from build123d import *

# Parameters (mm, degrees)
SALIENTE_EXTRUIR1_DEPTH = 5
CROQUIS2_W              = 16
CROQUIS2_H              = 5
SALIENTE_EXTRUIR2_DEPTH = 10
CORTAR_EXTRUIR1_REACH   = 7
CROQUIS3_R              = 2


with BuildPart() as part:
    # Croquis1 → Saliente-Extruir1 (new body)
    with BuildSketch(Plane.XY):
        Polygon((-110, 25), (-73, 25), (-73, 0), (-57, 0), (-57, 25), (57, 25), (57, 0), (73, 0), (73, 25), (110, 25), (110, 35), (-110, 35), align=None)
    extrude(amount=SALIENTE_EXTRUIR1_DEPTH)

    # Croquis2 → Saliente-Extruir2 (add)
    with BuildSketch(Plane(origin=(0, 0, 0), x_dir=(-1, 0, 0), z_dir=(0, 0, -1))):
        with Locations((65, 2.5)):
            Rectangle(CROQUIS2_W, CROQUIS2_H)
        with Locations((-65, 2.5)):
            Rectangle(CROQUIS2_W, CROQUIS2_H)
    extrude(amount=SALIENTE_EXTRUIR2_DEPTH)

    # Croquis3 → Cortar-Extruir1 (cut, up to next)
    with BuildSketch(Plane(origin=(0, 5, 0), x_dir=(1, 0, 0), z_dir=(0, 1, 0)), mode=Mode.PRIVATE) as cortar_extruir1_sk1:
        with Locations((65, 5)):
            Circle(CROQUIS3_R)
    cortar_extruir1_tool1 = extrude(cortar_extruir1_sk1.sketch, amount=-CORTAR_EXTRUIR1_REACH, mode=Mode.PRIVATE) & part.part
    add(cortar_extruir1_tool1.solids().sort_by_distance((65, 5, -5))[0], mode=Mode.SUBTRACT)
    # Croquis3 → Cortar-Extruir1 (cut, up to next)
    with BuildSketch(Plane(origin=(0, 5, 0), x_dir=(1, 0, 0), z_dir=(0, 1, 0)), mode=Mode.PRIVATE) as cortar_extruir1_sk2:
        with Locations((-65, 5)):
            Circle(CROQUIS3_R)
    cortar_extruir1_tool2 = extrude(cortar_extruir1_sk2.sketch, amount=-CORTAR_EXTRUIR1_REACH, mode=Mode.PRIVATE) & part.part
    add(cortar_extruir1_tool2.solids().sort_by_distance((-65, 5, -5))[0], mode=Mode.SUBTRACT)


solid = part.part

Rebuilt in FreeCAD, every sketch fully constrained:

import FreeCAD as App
import Part
import Sketcher

V = App.Vector


def add_polygon(sketch, points):
    """Adds a closed chain of lines whose ends are joined by coincident constraints."""
    first, n = sketch.GeometryCount, len(points)
    for a, b in zip(points, points[1:] + points[:1]):
        sketch.addGeometry(Part.LineSegment(App.Vector(*a, 0), App.Vector(*b, 0)), False)
    for i in range(n):
        sketch.addConstraint(Sketcher.Constraint("Coincident", first + i, 2, first + (i + 1) % n, 1))

doc = App.newDocument("Part")
params = doc.addObject("Spreadsheet::Sheet", "Params")
for row, (alias, value) in enumerate([
    ("sketch1_width", "37 mm"),
    ("sketch1_width2", "16 mm"),
    ("sketch1_width3", "114 mm"),
    ("sketch1_height", "25 mm"),
    ("sketch1_height2", "10 mm"),
    ("pad1_length", "5 mm"),
    ("sketch2_width", "16 mm"),
    ("sketch2_height", "5 mm"),
    ("pad2_length", "10 mm"),
    ("sketch3_diameter", "4 mm"),
    ("sketch4_diameter", "4 mm"),
], start=1):
    params.set(f"A{row}", alias)
    params.set(f"B{row}", "=" + value)
    params.setAlias(f"B{row}", alias)

body = doc.addObject("PartDesign::Body", "Body")

sketch1 = body.newObject("Sketcher::SketchObject", "Sketch")
sketch1.AttachmentSupport = (doc.getObject("XY_Plane"), [""])
sketch1.MapMode = "FlatFace"
add_polygon(sketch1, [(-110, 25), (-73, 25), (-73, 0), (-57, 0), (-57, 25), (57, 25), (57, 0), (73, 0), (73, 25), (110, 25), (110, 35), (-110, 35)])
sketch1.addConstraint([
    Sketcher.Constraint("Horizontal", 0),
    Sketcher.Constraint("Vertical", 1),
    Sketcher.Constraint("Horizontal", 2),
    Sketcher.Constraint("Vertical", 3),
    Sketcher.Constraint("Horizontal", 4),
    Sketcher.Constraint("Vertical", 5),
    Sketcher.Constraint("Horizontal", 6),
    Sketcher.Constraint("Vertical", 7),
    Sketcher.Constraint("Horizontal", 8),
    Sketcher.Constraint("Vertical", 9),
    Sketcher.Constraint("Horizontal", 10),
    Sketcher.Constraint("Vertical", 11),
    Sketcher.Constraint("Symmetric", 2, 2, 5, 2, -1, 1),
    Sketcher.Constraint("Symmetric", 1, 2, 6, 2, -2),
    Sketcher.Constraint("Symmetric", 8, 2, 11, 2, -2),
    Sketcher.Constraint("Horizontal", 0, 2, 3, 2),
    Sketcher.Constraint("DistanceX", 0, 1, 0, 2, 37.0),
    Sketcher.Constraint("DistanceX", 2, 1, 2, 2, 16.0),
    Sketcher.Constraint("DistanceX", 4, 1, 4, 2, 114.0),
    Sketcher.Constraint("DistanceY", 1, 2, 1, 1, 25.0),
    Sketcher.Constraint("DistanceY", 9, 1, 9, 2, 10.0),
])
sketch1.setExpression("Constraints[28]", "Params.sketch1_width")
sketch1.setExpression("Constraints[29]", "Params.sketch1_width2")
sketch1.setExpression("Constraints[30]", "Params.sketch1_width3")
sketch1.setExpression("Constraints[31]", "Params.sketch1_height")
sketch1.setExpression("Constraints[32]", "Params.sketch1_height2")
pad1 = body.newObject("PartDesign::Pad", "Pad")
pad1.Profile = sketch1
pad1.setExpression("Length", "Params.pad1_length")

sketch2 = body.newObject("Sketcher::SketchObject", "Sketch001")
sketch2.AttachmentSupport = (doc.getObject("XY_Plane"), [""])
sketch2.MapMode = "FlatFace"
add_polygon(sketch2, [(-57, 5), (-57, 0), (-73, 0), (-73, 5)])
add_polygon(sketch2, [(73, 5), (73, 0), (57, 0), (57, 5)])
sketch2.addConstraint([
    Sketcher.Constraint("Vertical", 0),
    Sketcher.Constraint("Horizontal", 1),
    Sketcher.Constraint("Vertical", 2),
    Sketcher.Constraint("Horizontal", 3),
    Sketcher.Constraint("Vertical", 4),
    Sketcher.Constraint("Horizontal", 5),
    Sketcher.Constraint("Vertical", 6),
    Sketcher.Constraint("Horizontal", 7),
    Sketcher.Constraint("Symmetric", 1, 2, 4, 2, -1, 1),
    Sketcher.Constraint("Symmetric", 0, 2, 5, 2, -2),
    Sketcher.Constraint("Horizontal", 3, 2, 6, 2),
    Sketcher.Constraint("DistanceX", 1, 2, 1, 1, 16.0),
    Sketcher.Constraint("DistanceY", 0, 2, 0, 1, 5.0),
    Sketcher.Constraint("DistanceX", 0, 2, -1, 1, 57.0),
])
sketch2.setExpression("Constraints[19]", "Params.sketch2_width")
sketch2.setExpression("Constraints[20]", "Params.sketch2_height")
pad2 = body.newObject("PartDesign::Pad", "Pad001")
pad2.Profile = sketch2
pad2.setExpression("Length", "Params.pad2_length")
pad2.Reversed = True

sketch3 = body.newObject("Sketcher::SketchObject", "Sketch002")
sketch3.AttachmentSupport = (doc.getObject("XZ_Plane"), [""])
sketch3.MapMode = "FlatFace"
sketch3.AttachmentOffset = App.Placement(V(0, 0, -5), App.Rotation())
sketch3.addGeometry(Part.Circle(V(65, -5, 0), V(0, 0, 1), 2), False)
sketch3.addConstraint([
    Sketcher.Constraint("Diameter", 0, 4.0),
    Sketcher.Constraint("DistanceX", -1, 1, 0, 3, 65.0),
    Sketcher.Constraint("DistanceY", 0, 3, -1, 1, 5.0),
])
sketch3.setExpression("Constraints[0]", "Params.sketch3_diameter")
pocket1 = body.newObject("PartDesign::Pocket", "Pocket")
pocket1.Profile = sketch3
pocket1.Type = "UpToFirst"
pocket1.Reversed = True

sketch4 = body.newObject("Sketcher::SketchObject", "Sketch003")
sketch4.AttachmentSupport = (doc.getObject("XZ_Plane"), [""])
sketch4.MapMode = "FlatFace"
sketch4.AttachmentOffset = App.Placement(V(0, 0, -5), App.Rotation())
sketch4.addGeometry(Part.Circle(V(-65, -5, 0), V(0, 0, 1), 2), False)
sketch4.addConstraint([
    Sketcher.Constraint("Diameter", 0, 4.0),
    Sketcher.Constraint("DistanceX", 0, 3, -1, 1, 65.0),
    Sketcher.Constraint("DistanceY", 0, 3, -1, 1, 5.0),
])
sketch4.setExpression("Constraints[0]", "Params.sketch4_diameter")
pocket2 = body.newObject("PartDesign::Pocket", "Pocket001")
pocket2.Profile = sketch4
pocket2.Type = "UpToFirst"
pocket2.Reversed = True

doc.recompute()
